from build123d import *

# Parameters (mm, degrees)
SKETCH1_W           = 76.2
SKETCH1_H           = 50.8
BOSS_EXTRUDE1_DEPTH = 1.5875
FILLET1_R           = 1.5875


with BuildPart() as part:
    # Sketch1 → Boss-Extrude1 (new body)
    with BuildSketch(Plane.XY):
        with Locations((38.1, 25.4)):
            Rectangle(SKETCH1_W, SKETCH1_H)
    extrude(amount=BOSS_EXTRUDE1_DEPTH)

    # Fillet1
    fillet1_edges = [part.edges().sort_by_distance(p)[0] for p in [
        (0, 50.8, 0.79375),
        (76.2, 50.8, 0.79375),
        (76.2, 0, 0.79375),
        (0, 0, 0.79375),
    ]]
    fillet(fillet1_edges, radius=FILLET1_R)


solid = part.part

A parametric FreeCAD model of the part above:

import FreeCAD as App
import Part
import Sketcher

V = App.Vector
Q = App.Units.Quantity


def edges_at(feature, points):
    """Names of the edges that pass closest to the given points."""
    edges = feature.Shape.Edges
    near = lambda p: min(range(len(edges)), key=lambda i: edges[i].distToShape(Part.Vertex(*p))[0])
    return sorted({f"Edge{near(p) + 1}" for p in points})


def add_polygon(sketch, points):
    """Adds a closed chain of lines whose ends are joined by coincident constraints."""
    first, n = sketch.GeometryCount, len(points)
    for a, b in zip(points, points[1:] + points[:1]):
        sketch.addGeometry(Part.LineSegment(App.Vector(*a, 0), App.Vector(*b, 0)), False)
    for i in range(n):
        sketch.addConstraint(Sketcher.Constraint("Coincident", first + i, 2, first + (i + 1) % n, 1))

doc = App.newDocument("Part")
body = doc.addObject("PartDesign::Body", "Body")

# Sketch on XY plane
sketch1 = body.newObject("Sketcher::SketchObject", "Sketch")
sketch1.AttachmentSupport = (doc.getObject("XY_Plane"), [""])
sketch1.MapMode = "FlatFace"
add_polygon(sketch1, [(0, 51), (0, 0), (76, 0), (76, 51)])  # lines 0-3
sketch1.addConstraint([
    Sketcher.Constraint("Vertical", 0),
    Sketcher.Constraint("Horizontal", 1),
    Sketcher.Constraint("Vertical", 2),
    Sketcher.Constraint("Horizontal", 3),
    Sketcher.Constraint("Coincident", 0, 2, -1, 1),
    Sketcher.Constraint("DistanceX", 1, 1, 1, 2, Q("3 in")),
    Sketcher.Constraint("DistanceY", 0, 2, 0, 1, Q("2 in")),
])
pad1 = body.newObject("PartDesign::Pad", "Pad")
pad1.Profile = sketch1
pad1.Length = Q("0.0625 in")
doc.recompute()

fillet = body.newObject("PartDesign::Fillet", "Fillet")
fillet.Base = (pad1, edges_at(pad1, [
    (0, 50.8, 0.794),
    (76.2, 50.8, 0.794),
    (76.2, 0, 0.794),
    (0, 0, 0.794),
]))
fillet.Radius = Q("0.0625 in")

doc.recompute()
